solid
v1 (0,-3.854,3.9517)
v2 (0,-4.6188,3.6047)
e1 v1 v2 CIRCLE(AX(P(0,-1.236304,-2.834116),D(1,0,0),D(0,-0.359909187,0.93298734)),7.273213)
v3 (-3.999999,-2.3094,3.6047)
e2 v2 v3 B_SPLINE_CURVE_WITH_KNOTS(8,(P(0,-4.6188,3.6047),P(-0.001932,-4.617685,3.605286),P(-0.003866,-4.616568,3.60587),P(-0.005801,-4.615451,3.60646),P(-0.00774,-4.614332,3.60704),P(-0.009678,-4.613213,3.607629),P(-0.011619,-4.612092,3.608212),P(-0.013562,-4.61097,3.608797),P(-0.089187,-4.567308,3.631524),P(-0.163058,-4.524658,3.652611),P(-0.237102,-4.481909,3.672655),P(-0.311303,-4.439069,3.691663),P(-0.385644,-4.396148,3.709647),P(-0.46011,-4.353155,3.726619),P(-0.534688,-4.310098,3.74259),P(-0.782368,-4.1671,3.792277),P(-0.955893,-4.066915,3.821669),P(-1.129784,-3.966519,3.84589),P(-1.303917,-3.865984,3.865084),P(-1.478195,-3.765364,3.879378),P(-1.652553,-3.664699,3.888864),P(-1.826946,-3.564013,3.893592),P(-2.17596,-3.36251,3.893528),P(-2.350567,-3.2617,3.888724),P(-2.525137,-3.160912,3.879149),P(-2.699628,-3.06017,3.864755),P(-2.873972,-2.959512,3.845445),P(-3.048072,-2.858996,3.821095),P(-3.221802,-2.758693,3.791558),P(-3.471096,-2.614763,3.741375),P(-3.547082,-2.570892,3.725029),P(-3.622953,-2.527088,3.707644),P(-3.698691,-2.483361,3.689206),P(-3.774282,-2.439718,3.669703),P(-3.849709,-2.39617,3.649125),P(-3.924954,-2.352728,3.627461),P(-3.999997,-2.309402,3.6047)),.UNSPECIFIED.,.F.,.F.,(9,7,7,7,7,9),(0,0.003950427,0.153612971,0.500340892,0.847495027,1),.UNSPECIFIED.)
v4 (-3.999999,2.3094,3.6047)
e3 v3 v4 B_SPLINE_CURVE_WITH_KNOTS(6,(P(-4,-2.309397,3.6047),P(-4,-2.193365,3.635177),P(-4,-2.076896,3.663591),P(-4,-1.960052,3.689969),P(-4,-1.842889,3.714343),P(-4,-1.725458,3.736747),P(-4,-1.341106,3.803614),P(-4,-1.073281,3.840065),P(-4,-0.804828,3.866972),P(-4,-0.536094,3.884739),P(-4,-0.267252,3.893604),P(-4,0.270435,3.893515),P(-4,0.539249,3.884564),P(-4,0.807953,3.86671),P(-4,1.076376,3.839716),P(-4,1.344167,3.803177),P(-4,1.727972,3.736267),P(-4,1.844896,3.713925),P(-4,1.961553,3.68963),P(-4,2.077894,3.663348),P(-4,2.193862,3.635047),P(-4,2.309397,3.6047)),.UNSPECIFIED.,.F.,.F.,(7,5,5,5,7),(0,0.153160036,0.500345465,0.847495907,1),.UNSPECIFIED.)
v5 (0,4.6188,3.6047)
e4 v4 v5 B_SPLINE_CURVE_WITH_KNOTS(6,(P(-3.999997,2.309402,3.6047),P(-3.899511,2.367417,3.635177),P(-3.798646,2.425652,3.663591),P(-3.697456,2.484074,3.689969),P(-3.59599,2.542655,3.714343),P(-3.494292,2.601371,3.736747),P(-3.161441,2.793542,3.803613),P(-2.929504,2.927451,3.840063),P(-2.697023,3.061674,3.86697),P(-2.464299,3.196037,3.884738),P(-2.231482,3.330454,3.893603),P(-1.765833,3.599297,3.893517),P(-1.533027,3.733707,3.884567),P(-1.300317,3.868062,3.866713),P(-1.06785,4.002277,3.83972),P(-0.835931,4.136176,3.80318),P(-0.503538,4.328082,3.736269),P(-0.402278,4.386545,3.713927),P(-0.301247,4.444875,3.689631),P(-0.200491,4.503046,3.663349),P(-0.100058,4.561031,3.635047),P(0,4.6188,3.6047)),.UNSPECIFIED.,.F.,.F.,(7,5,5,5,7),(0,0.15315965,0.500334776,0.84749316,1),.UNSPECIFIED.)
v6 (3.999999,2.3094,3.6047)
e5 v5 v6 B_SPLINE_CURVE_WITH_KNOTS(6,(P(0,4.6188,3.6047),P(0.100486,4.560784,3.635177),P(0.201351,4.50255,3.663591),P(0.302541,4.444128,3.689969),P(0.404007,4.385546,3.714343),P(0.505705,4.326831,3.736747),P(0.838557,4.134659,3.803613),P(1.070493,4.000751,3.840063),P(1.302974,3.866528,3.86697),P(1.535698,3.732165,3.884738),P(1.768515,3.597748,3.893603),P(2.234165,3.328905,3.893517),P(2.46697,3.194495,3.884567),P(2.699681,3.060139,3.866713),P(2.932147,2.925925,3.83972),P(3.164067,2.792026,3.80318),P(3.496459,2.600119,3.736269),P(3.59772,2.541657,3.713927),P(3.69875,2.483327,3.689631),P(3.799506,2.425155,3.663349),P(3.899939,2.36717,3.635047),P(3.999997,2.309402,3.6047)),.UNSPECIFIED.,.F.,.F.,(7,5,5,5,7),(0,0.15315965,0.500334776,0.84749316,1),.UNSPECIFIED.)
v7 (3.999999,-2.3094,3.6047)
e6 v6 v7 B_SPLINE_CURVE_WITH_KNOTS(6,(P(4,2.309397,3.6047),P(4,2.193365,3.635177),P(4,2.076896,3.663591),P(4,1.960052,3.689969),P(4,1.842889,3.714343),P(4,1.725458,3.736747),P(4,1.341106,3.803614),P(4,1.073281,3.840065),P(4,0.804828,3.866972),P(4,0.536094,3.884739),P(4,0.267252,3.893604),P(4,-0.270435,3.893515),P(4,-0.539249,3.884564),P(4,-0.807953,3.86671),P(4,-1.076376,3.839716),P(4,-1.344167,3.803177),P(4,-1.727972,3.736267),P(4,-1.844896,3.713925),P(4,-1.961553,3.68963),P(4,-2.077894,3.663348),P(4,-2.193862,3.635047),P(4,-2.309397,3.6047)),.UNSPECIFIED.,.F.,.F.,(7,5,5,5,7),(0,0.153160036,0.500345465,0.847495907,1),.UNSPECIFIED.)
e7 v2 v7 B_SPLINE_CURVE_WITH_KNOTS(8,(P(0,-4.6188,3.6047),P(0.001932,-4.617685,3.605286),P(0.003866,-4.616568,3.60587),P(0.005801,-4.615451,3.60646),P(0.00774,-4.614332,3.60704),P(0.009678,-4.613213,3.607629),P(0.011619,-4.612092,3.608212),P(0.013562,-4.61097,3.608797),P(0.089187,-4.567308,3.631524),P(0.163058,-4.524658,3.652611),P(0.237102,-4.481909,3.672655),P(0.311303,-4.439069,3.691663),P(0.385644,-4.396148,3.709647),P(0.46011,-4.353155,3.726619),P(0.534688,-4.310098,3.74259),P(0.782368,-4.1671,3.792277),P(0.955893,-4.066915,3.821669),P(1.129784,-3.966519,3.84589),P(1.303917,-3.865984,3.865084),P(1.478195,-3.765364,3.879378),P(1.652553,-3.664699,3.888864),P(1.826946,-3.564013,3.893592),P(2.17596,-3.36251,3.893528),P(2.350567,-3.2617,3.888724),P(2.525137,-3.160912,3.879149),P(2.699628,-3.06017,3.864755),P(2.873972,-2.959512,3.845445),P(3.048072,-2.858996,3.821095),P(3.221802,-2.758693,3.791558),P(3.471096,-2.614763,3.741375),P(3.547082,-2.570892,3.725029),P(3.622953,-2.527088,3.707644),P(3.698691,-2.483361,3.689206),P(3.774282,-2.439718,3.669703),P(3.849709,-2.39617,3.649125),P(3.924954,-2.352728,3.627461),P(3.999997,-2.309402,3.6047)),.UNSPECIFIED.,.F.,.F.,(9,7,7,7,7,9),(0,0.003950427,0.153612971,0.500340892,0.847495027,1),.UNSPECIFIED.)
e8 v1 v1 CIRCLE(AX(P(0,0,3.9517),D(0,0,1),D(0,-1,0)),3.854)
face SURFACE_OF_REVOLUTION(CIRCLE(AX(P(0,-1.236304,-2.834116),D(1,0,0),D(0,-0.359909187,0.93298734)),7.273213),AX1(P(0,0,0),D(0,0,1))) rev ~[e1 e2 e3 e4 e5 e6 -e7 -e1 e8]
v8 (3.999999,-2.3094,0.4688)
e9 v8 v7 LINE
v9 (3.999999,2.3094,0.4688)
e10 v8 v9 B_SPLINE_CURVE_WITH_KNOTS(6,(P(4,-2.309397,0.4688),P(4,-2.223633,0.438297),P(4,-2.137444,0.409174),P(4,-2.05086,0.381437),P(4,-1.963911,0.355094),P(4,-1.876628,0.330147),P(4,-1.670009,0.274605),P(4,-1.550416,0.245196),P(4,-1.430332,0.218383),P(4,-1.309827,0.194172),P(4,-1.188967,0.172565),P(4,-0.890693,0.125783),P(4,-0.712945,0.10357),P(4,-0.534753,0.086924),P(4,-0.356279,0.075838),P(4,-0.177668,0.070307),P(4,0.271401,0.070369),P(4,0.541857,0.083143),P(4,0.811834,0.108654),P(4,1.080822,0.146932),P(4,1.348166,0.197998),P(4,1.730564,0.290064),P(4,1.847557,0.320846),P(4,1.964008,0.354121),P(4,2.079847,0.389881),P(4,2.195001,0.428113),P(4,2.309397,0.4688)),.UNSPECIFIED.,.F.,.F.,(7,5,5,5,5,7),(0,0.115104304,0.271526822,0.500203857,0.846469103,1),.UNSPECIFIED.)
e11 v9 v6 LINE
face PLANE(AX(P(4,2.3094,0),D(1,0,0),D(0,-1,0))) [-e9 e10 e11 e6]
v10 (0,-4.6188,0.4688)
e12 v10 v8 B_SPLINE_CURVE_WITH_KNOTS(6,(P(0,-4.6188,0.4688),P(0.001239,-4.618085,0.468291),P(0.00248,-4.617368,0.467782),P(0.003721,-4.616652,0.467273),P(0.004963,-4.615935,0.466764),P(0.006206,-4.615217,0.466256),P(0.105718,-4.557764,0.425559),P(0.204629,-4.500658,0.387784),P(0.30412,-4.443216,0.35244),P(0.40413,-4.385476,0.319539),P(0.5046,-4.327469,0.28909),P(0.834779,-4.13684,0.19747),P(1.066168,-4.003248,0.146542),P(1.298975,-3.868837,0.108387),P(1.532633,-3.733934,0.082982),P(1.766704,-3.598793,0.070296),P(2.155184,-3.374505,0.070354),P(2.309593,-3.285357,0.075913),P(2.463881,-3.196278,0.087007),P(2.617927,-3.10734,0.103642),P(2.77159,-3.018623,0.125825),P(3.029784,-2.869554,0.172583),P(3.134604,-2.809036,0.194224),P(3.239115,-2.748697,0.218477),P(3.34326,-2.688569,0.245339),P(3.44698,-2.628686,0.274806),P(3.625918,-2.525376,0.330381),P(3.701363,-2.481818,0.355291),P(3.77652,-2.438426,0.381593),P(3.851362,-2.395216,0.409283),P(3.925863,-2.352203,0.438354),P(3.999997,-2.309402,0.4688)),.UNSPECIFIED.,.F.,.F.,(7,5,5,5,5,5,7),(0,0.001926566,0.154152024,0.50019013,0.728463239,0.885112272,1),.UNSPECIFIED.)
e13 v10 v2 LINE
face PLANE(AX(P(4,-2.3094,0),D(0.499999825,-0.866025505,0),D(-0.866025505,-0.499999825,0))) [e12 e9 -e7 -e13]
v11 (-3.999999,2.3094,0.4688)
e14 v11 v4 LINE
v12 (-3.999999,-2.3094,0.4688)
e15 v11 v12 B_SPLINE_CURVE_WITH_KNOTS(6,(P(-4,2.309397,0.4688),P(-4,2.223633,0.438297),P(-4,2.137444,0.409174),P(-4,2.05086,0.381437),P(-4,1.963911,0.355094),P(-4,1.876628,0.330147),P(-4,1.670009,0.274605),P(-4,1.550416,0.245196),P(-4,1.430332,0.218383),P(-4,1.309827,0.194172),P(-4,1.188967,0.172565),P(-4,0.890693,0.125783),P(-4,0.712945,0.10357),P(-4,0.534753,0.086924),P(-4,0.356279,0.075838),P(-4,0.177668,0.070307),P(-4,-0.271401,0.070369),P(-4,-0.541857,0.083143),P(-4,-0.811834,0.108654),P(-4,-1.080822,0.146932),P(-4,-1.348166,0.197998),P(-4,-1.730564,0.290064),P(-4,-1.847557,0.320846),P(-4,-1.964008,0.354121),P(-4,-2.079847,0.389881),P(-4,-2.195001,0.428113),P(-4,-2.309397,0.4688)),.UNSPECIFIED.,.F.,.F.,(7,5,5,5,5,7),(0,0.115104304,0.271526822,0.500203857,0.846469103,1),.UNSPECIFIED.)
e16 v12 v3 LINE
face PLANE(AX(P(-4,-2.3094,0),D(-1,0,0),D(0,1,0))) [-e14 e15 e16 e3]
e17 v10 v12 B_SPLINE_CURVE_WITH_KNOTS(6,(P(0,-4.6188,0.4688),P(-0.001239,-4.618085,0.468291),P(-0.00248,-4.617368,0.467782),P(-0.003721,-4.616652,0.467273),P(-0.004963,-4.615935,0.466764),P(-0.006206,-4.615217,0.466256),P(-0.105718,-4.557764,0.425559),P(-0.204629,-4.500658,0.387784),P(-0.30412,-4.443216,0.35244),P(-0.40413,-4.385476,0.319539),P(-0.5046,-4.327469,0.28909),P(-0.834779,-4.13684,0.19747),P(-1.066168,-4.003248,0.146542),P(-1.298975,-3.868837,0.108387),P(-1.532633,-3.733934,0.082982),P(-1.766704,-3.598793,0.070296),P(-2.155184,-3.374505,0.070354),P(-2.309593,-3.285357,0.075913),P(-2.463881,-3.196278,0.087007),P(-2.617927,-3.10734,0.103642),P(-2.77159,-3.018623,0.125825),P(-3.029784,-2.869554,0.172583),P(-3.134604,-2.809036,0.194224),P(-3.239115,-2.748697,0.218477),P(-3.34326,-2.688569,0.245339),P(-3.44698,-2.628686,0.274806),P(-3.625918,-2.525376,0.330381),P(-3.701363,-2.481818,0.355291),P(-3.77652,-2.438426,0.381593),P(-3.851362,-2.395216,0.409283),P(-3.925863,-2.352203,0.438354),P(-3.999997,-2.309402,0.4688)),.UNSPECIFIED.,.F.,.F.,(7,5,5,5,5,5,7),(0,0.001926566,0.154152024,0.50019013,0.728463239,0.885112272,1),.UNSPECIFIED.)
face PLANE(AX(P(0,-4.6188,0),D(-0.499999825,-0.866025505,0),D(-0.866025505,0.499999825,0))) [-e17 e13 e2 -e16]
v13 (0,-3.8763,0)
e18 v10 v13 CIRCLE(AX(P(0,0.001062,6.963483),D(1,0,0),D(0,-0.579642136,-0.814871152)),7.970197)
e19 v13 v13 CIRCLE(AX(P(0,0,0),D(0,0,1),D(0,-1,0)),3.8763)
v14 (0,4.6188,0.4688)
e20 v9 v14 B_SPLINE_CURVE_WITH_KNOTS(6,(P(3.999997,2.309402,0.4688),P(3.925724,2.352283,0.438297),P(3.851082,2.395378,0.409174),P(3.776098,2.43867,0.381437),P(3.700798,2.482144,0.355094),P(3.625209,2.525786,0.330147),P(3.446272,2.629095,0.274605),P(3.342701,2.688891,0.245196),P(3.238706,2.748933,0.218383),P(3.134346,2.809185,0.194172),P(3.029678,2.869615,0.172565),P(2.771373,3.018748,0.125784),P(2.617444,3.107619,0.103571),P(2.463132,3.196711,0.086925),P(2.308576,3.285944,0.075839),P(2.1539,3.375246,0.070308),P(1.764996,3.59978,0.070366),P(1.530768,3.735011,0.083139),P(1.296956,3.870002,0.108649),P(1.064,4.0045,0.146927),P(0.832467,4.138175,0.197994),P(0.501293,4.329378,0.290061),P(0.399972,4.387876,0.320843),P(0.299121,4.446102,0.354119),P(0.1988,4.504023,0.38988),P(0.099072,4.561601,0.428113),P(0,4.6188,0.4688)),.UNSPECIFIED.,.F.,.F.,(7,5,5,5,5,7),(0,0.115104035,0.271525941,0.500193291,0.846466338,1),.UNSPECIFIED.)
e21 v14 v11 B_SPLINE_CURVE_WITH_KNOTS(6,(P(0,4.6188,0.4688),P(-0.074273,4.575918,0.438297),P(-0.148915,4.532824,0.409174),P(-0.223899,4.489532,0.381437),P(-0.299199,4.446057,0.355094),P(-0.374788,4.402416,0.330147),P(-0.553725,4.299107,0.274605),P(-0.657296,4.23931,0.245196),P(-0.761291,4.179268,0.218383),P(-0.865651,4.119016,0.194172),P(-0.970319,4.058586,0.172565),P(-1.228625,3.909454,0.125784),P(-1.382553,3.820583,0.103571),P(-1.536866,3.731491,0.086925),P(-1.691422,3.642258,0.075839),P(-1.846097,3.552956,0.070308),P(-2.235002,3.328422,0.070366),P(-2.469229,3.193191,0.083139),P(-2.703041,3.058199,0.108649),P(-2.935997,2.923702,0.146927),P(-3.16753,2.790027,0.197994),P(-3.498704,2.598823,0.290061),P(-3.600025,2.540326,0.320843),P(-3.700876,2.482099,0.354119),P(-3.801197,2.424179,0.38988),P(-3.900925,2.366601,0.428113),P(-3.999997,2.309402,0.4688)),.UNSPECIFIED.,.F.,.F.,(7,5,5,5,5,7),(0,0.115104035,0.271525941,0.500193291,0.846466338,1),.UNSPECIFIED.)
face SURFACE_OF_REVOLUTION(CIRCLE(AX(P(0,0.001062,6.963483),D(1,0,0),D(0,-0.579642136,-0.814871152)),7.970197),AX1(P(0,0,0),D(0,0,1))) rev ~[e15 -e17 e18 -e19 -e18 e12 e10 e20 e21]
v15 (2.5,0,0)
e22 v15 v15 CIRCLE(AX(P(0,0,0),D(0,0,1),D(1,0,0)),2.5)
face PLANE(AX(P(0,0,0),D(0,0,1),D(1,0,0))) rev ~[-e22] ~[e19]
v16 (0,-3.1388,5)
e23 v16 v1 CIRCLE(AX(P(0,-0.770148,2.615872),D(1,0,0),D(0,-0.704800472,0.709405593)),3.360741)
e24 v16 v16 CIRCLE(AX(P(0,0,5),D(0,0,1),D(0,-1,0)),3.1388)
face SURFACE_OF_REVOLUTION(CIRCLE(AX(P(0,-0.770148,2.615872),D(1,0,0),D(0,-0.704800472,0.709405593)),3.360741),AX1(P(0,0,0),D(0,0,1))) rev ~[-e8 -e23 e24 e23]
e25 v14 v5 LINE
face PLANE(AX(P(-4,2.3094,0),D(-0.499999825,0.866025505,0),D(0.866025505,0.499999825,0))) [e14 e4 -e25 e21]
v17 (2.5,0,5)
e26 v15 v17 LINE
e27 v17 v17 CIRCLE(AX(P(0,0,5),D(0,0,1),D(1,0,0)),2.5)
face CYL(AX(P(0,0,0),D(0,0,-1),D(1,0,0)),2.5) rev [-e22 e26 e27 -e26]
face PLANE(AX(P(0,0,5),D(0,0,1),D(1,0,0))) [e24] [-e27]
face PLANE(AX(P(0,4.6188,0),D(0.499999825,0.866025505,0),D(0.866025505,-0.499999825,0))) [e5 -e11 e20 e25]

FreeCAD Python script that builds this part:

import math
import FreeCAD as App
import Part
import Sketcher
Q = App.Units.Quantity

doc = App.newDocument("Part")
body = doc.addObject("PartDesign::Body", "Body")

# Sketch on XY plane
sketch1 = body.newObject("Sketcher::SketchObject", "Sketch")
sketch1.AttachmentSupport = (doc.getObject("XY_Plane"), [""])
sketch1.MapMode = "FlatFace"
sketch1.addGeometry(Part.LineSegment(App.Vector(0, -4.6188, 0), App.Vector(4, -2.3094, 0)), False)
sketch1.addGeometry(Part.LineSegment(App.Vector(4, -2.3094, 0), App.Vector(4, 2.3094, 0)), False)
sketch1.addGeometry(Part.LineSegment(App.Vector(4, 2.3094, 0), App.Vector(0, 4.6188, 0)), False)
sketch1.addGeometry(Part.LineSegment(App.Vector(0, 4.6188, 0), App.Vector(-4, 2.3094, 0)), False)
sketch1.addGeometry(Part.LineSegment(App.Vector(-4, 2.3094, 0), App.Vector(-4, -2.3094, 0)), False)
sketch1.addGeometry(Part.LineSegment(App.Vector(-4, -2.3094, 0), App.Vector(0, -4.6188, 0)), False)
sketch1.addGeometry(Part.Circle(App.Vector(0, 0, 0), App.Vector(0, 0, 1), 2.5), False)
sketch1.addConstraint(Sketcher.Constraint("Coincident", 0, 2, 1, 1))
sketch1.addConstraint(Sketcher.Constraint("Coincident", 1, 2, 2, 1))
sketch1.addConstraint(Sketcher.Constraint("Coincident", 2, 2, 3, 1))
sketch1.addConstraint(Sketcher.Constraint("Coincident", 3, 2, 4, 1))
sketch1.addConstraint(Sketcher.Constraint("Coincident", 4, 2, 5, 1))
sketch1.addConstraint(Sketcher.Constraint("Coincident", 5, 2, 0, 1))
sketch1.addConstraint(Sketcher.Constraint("Vertical", 1))
sketch1.addConstraint(Sketcher.Constraint("Vertical", 4))
sketch1.addConstraint(Sketcher.Constraint("Coincident", 6, 3, -1, 1))
sketch1.addConstraint(Sketcher.Constraint("Symmetric", 0, 2, 3, 2, -1, 1))
sketch1.addConstraint(Sketcher.Constraint("Symmetric", 2, 2, 5, 2, -1, 1))
sketch1.addConstraint(Sketcher.Constraint("PointOnObject", 2, 2, -2))
sketch1.addConstraint(Sketcher.Constraint("Parallel", 2, 5))
sketch1.addConstraint(Sketcher.Constraint("Horizontal", 1, 2, 3, 2))
sketch1.addConstraint(Sketcher.Constraint("Diameter", 6, Q("5 mm")))
sketch1.addConstraint(Sketcher.Constraint("DistanceX", 3, 2, 1, 2, Q("8 mm")))
sketch1.addConstraint(Sketcher.Constraint("Angle", 0, Q("30 deg")))
sketch1.addConstraint(Sketcher.Constraint("DistanceY", 1, 1, 1, 2, Q("4.6188 mm")))
pad1 = body.newObject("PartDesign::Pad", "Pad")
pad1.Profile = sketch1
pad1.Length = 5

# Sketch on YZ plane
sketch2 = body.newObject("Sketcher::SketchObject", "Sketch001")
sketch2.AttachmentSupport = (doc.getObject("YZ_Plane"), [""])
sketch2.MapMode = "FlatFace"
sketch2.addGeometry(Part.LineSegment(App.Vector(-4.6188, 0.4688, 0), App.Vector(-4.6188, 0, 0)), False)
sketch2.addGeometry(Part.LineSegment(App.Vector(-4.6188, 0, 0), App.Vector(-3.8763, 0, 0)), False)
sketch2.addGeometry(Part.ArcOfCircle(Part.Circle(App.Vector(0.001062, 6.963483, 0), App.Vector(0, 0, 1), 7.970197), math.radians(-125.425376), math.radians(-119.109653)), False)
sketch2.addGeometry(Part.LineSegment(App.Vector(-4.6188, 5, 0), App.Vector(-4.6188, 3.6047, 0)), False)
sketch2.addGeometry(Part.ArcOfCircle(Part.Circle(App.Vector(-1.236304, -2.834116, 0), App.Vector(0, 0, 1), 7.273213), math.radians(111.094619), math.radians(117.714245)), False)
sketch2.addGeometry(Part.ArcOfCircle(Part.Circle(App.Vector(-0.770148, 2.615872, 0), App.Vector(0, 0, 1), 3.360741), math.radians(134.813427), math.radians(156.579246)), False)
sketch2.addGeometry(Part.LineSegment(App.Vector(-3.1388, 5, 0), App.Vector(-4.6188, 5, 0)), False)
sketch2.addConstraint(Sketcher.Constraint("Coincident", 0, 2, 1, 1))
sketch2.addConstraint(Sketcher.Constraint("Coincident", 1, 2, 2, 2))
sketch2.addConstraint(Sketcher.Constraint("Coincident", 2, 1, 0, 1))
sketch2.addConstraint(Sketcher.Constraint("Coincident", 3, 2, 4, 2))
sketch2.addConstraint(Sketcher.Constraint("Coincident", 4, 1, 5, 2))
sketch2.addConstraint(Sketcher.Constraint("Coincident", 5, 1, 6, 1))
sketch2.addConstraint(Sketcher.Constraint("Coincident", 6, 2, 3, 1))
sketch2.addConstraint(Sketcher.Constraint("Vertical", 0))
sketch2.addConstraint(Sketcher.Constraint("Horizontal", 1))
sketch2.addConstraint(Sketcher.Constraint("Vertical", 3))
sketch2.addConstraint(Sketcher.Constraint("Horizontal", 6))
sketch2.addConstraint(Sketcher.Constraint("PointOnObject", 0, 2, -1))
sketch2.addConstraint(Sketcher.Constraint("Vertical", 2, 1, 3, 2))
sketch2.addConstraint(Sketcher.Constraint("DistanceY", -1, 1, 5, 1, Q("5 mm")))
sketch2.addConstraint(Sketcher.Constraint("DistanceX", 6, 2, 6, 1, Q("1.48 mm")))
sketch2.addConstraint(Sketcher.Constraint("Radius", 2, Q("7.9702 mm")))
sketch2.addConstraint(Sketcher.Constraint("Radius", 4, Q("7.2732 mm")))
sketch2.addConstraint(Sketcher.Constraint("Radius", 5, Q("3.3607 mm")))
sketch2.addConstraint(Sketcher.Constraint("DistanceY", 4, 3, 5, 3, Q("5.45 mm")))
sketch2.addConstraint(Sketcher.Constraint("DistanceX", 1, 2, 4, 3, Q("2.64 mm")))
sketch2.addConstraint(Sketcher.Constraint("DistanceX", 1, 1, 1, 2, Q("0.7425 mm")))
sketch2.addConstraint(Sketcher.Constraint("DistanceY", 0, 2, 0, 1, Q("0.4688 mm")))
sketch2.addConstraint(Sketcher.Constraint("DistanceY", 3, 2, 3, 1, Q("1.3953 mm")))
sketch2.addConstraint(Sketcher.Constraint("DistanceX", -1, 1, 2, 3, Q("0.001 mm")))
groove = body.newObject("PartDesign::Groove", "Groove")
groove.Profile = sketch2
groove.ReferenceAxis = (sketch2, ["V_Axis"])
groove.Angle = 360

doc.recompute()
